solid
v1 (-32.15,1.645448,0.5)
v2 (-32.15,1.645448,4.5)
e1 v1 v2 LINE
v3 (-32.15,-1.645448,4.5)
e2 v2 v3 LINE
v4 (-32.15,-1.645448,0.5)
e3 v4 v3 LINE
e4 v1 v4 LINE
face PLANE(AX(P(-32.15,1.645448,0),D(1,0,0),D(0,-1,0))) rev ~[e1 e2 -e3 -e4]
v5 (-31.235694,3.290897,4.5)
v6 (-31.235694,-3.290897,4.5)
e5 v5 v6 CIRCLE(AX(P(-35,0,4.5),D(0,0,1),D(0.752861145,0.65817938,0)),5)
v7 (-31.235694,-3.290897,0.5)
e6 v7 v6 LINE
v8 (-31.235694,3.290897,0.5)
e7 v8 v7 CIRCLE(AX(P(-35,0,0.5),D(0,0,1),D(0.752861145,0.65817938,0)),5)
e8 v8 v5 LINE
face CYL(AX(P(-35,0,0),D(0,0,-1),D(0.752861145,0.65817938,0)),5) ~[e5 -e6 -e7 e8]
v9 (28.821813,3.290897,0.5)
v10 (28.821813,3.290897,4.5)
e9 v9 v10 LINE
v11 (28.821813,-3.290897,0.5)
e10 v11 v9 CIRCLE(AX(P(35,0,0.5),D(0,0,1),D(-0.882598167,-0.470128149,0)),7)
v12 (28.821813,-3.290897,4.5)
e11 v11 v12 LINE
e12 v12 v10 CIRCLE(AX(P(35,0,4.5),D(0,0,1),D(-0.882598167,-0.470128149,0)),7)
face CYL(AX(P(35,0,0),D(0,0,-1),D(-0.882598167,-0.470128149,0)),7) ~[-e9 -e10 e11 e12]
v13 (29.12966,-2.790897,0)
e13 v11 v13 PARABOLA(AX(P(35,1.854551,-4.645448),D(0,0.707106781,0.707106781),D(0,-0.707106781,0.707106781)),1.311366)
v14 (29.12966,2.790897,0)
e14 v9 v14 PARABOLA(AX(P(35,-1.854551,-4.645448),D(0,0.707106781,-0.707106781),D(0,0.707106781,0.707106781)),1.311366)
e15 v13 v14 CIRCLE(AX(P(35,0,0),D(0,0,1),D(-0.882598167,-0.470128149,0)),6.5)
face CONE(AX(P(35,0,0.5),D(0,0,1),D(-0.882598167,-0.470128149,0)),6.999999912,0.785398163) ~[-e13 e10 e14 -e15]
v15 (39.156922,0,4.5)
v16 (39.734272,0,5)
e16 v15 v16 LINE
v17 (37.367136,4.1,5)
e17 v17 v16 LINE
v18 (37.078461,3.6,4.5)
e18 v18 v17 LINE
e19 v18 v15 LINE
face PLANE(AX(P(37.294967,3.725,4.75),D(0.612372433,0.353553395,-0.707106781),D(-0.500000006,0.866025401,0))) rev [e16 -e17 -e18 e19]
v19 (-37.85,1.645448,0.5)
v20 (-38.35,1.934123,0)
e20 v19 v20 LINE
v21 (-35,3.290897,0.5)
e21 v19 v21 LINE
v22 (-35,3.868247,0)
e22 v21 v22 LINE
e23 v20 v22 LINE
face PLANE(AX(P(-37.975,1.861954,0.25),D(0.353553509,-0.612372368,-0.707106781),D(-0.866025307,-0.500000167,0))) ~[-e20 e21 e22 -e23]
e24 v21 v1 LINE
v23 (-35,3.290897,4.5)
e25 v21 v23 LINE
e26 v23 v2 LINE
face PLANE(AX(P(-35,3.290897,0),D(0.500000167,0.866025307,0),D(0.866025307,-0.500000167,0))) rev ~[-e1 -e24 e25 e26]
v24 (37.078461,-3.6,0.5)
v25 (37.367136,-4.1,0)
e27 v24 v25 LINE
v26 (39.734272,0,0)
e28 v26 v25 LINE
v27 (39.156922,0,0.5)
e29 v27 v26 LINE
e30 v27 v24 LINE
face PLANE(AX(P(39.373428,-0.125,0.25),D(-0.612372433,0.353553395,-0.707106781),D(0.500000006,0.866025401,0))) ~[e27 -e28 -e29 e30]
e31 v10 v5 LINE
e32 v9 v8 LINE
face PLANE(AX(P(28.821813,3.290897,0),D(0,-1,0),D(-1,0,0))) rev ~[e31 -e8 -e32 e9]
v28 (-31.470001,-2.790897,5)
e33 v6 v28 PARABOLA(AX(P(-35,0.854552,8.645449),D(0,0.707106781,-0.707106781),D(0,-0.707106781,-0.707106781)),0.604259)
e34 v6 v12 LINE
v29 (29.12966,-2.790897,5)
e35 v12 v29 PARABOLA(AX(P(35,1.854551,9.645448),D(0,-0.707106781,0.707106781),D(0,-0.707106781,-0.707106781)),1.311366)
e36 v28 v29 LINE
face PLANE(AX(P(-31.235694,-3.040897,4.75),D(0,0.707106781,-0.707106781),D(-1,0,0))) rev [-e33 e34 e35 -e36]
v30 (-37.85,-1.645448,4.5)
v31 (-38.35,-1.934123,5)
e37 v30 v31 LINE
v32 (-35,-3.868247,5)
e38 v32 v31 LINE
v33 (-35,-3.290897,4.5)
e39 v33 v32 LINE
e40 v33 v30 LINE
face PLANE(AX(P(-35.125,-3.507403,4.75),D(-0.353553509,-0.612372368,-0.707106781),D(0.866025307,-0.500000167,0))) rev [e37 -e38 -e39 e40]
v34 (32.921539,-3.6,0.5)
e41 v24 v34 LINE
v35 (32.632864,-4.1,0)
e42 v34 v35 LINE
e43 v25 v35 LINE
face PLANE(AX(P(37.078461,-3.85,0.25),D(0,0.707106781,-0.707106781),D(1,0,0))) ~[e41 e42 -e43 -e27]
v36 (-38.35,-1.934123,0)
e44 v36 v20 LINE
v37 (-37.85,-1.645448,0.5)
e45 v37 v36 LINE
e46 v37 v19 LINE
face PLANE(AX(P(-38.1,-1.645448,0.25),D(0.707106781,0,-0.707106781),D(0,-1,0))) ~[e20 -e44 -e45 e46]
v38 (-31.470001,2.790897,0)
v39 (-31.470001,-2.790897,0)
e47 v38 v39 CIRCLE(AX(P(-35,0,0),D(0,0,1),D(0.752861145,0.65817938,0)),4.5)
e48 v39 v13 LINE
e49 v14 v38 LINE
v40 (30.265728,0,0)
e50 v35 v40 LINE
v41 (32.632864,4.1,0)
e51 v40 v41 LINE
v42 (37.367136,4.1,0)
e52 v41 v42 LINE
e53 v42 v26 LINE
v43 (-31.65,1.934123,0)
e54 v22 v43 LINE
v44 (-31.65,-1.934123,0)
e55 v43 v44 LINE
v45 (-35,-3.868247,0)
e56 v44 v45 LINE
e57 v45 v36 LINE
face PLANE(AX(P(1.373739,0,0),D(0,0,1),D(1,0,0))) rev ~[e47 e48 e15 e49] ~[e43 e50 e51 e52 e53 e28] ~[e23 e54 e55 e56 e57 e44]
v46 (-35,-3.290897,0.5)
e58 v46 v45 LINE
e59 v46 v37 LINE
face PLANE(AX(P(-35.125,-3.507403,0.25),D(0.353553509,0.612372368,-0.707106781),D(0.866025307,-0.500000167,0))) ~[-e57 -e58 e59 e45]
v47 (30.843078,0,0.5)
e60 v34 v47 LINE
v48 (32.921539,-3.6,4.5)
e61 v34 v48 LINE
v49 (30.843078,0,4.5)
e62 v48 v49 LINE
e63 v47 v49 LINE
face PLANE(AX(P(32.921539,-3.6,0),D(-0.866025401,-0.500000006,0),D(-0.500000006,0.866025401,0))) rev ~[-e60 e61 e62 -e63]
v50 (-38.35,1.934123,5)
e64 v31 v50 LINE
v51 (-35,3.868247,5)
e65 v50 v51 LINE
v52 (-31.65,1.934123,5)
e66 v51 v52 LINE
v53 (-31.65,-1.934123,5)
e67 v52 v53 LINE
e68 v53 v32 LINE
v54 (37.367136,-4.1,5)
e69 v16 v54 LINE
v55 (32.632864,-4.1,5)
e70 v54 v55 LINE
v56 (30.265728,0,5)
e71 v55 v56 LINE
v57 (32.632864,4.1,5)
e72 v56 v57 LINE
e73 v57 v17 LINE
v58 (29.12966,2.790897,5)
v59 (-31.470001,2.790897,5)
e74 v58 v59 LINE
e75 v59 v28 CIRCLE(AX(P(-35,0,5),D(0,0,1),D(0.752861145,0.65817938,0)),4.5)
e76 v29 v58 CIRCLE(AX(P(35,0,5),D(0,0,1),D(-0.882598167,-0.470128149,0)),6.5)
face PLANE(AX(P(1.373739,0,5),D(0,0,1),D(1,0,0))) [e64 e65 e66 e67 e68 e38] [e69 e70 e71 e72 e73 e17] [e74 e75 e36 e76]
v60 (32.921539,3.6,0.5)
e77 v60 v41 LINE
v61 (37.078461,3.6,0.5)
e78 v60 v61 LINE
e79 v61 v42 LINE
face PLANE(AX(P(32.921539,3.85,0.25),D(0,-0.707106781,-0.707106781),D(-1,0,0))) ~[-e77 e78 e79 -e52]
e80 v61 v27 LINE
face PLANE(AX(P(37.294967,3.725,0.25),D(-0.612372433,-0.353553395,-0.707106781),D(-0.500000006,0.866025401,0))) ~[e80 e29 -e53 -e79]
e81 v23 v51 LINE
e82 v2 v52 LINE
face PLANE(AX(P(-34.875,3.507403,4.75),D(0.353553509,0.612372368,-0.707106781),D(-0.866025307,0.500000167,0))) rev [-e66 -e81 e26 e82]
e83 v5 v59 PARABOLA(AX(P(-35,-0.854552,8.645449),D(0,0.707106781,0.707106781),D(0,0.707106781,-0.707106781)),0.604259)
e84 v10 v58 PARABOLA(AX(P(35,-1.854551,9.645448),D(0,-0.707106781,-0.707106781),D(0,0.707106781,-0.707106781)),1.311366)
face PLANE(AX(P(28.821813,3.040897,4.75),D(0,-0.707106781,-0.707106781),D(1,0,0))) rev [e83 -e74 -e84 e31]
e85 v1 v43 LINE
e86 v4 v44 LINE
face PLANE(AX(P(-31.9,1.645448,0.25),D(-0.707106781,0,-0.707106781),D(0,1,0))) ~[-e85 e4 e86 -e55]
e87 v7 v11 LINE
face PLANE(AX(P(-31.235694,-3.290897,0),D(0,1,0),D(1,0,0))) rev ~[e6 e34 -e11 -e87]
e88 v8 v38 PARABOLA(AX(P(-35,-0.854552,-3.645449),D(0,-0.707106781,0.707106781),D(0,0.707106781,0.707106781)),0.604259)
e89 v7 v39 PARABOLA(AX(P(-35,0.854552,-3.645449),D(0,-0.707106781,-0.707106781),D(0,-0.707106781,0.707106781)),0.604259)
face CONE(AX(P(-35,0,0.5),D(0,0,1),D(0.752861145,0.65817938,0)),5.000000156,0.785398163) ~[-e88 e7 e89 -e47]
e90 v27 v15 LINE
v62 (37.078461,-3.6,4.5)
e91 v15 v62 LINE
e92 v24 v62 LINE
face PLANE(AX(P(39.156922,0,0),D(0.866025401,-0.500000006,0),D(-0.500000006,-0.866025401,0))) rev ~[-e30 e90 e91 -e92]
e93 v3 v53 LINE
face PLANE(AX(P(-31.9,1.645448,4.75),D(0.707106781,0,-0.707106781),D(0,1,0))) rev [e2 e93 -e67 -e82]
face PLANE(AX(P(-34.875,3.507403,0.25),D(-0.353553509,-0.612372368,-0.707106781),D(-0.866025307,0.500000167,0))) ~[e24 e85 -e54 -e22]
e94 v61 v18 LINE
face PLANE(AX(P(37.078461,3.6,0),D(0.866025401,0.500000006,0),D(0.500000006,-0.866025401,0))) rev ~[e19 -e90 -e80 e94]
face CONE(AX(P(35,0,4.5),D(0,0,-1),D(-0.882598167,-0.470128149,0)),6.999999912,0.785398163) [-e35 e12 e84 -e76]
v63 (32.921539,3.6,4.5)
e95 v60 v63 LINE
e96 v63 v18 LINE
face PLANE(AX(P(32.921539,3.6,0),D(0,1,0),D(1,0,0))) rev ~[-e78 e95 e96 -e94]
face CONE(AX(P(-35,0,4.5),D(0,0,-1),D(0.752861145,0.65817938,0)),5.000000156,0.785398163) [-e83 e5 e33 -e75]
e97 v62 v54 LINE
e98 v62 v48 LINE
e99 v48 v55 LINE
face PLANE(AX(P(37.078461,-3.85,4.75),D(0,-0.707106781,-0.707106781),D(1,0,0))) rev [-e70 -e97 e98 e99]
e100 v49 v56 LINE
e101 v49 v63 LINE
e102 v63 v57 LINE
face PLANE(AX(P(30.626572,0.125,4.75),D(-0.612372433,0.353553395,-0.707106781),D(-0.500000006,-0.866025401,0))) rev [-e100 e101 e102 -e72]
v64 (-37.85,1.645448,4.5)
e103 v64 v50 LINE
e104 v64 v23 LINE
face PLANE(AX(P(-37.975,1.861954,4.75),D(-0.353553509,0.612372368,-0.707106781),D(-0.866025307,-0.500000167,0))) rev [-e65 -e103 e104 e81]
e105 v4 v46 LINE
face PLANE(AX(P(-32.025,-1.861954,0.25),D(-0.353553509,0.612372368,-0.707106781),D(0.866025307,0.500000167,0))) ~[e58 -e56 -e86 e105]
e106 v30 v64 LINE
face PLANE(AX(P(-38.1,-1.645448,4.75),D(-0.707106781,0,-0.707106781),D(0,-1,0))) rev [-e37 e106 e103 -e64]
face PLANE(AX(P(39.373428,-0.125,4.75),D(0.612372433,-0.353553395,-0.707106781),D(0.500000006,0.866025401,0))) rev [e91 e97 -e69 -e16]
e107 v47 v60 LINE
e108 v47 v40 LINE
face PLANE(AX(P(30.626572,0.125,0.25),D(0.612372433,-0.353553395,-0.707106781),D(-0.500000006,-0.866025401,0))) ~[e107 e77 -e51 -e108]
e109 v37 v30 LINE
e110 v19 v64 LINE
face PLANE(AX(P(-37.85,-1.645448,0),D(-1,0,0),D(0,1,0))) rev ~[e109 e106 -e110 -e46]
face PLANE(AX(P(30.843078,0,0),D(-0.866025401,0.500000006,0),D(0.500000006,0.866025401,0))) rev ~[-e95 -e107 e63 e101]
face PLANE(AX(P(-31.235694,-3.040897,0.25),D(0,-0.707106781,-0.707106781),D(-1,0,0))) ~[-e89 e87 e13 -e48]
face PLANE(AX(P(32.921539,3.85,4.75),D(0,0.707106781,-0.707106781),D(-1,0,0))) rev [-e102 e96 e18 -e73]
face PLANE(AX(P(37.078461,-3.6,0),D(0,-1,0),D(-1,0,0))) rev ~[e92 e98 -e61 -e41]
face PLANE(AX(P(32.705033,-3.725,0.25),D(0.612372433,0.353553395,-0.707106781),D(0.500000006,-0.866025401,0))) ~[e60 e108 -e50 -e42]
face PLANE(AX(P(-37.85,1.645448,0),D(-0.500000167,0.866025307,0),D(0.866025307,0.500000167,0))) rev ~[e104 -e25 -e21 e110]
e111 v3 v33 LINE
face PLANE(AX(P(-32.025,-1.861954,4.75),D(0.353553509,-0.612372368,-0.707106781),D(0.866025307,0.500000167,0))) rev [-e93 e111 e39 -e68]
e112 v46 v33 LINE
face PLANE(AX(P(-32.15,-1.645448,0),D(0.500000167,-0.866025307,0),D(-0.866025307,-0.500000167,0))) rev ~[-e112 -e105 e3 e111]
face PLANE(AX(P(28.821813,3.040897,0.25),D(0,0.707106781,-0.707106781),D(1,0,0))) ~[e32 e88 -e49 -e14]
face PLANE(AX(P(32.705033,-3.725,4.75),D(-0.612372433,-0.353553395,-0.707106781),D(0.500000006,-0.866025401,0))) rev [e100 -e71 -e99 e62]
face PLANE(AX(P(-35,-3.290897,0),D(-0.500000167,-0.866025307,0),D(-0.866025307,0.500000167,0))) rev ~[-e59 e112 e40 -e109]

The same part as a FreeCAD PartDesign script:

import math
import FreeCAD as App
import Part
import Sketcher
Q = App.Units.Quantity


def edges_at(feature, points):
    """Names of the edges that pass closest to the given points."""
    edges = feature.Shape.Edges
    near = lambda p: min(range(len(edges)), key=lambda i: edges[i].distToShape(Part.Vertex(*p))[0])
    return sorted({f"Edge{near(p) + 1}" for p in points})


def add_polygon(sketch, points):
    """Adds a closed chain of lines whose ends are joined by coincident constraints."""
    first, n = sketch.GeometryCount, len(points)
    for a, b in zip(points, points[1:] + points[:1]):
        sketch.addGeometry(Part.LineSegment(App.Vector(*a, 0), App.Vector(*b, 0)), False)
    for i in range(n):
        sketch.addConstraint(Sketcher.Constraint("Coincident", first + i, 2, first + (i + 1) % n, 1))

doc = App.newDocument("Part")
body = doc.addObject("PartDesign::Body", "Body")

# Sketch on XY plane
sketch1 = doc.addObject("Sketcher::SketchObject", "Sketch")
body.addObject(sketch1)
sketch1.AttachmentSupport = (doc.XY_Plane, [""])
sketch1.MapMode = "FlatFace"
sketch1.addGeometry(Part.LineSegment(App.Vector(28.8, 3.3, 0), App.Vector(-31.2, 3.3, 0)), False)  # 0
sketch1.addGeometry(Part.ArcOfCircle(Part.Circle(App.Vector(-35, 0, 0), App.Vector(0, 0, 1), 5), math.radians(41), math.radians(319)), False)  # 1
sketch1.addGeometry(Part.LineSegment(App.Vector(-31.2, -3.3, 0), App.Vector(28.8, -3.3, 0)), False)  # 2
sketch1.addGeometry(Part.ArcOfCircle(Part.Circle(App.Vector(35, 0, 0), App.Vector(0, 0, 1), 7), math.radians(-152), math.radians(152)), False)  # 3
add_polygon(sketch1, [(-35, 3.3), (-32.1, 1.6), (-32.1, -1.6), (-35, -3.3), (-37.9, -1.6), (-37.9, 1.6)])  # lines 4-9
add_polygon(sketch1, [(37.1, 3.6), (39.2, 0), (37.1, -3.6), (32.9, -3.6), (30.8, 0), (32.9, 3.6)])  # lines 10-15
sketch1.addConstraint(Sketcher.Constraint("Coincident", 0, 2, 1, 1))
sketch1.addConstraint(Sketcher.Constraint("Coincident", 1, 2, 2, 1))
sketch1.addConstraint(Sketcher.Constraint("Coincident", 2, 2, 3, 1))
sketch1.addConstraint(Sketcher.Constraint("Coincident", 3, 2, 0, 1))
sketch1.addConstraint(Sketcher.Constraint("Horizontal", 0))
sketch1.addConstraint(Sketcher.Constraint("Horizontal", 2))
sketch1.addConstraint(Sketcher.Constraint("Vertical", 5))
sketch1.addConstraint(Sketcher.Constraint("Vertical", 8))
sketch1.addConstraint(Sketcher.Constraint("Horizontal", 12))
sketch1.addConstraint(Sketcher.Constraint("Horizontal", 15))
sketch1.addConstraint(Sketcher.Constraint("Symmetric", 1, 3, 3, 3, -1, 1))
sketch1.addConstraint(Sketcher.Constraint("Symmetric", 0, 2, 1, 2, -1))
sketch1.addConstraint(Sketcher.Constraint("Symmetric", 6, 2, 9, 2, -1))
sketch1.addConstraint(Sketcher.Constraint("Symmetric", 12, 2, 14, 2, -1))
sketch1.addConstraint(Sketcher.Constraint("PointOnObject", 10, 2, -1))
sketch1.addConstraint(Sketcher.Constraint("PointOnObject", 13, 2, -1))
sketch1.addConstraint(Sketcher.Constraint("Parallel", 4, 7))
sketch1.addConstraint(Sketcher.Constraint("Parallel", 6, 9))
sketch1.addConstraint(Sketcher.Constraint("Perpendicular", 9, 10))
sketch1.addConstraint(Sketcher.Constraint("Perpendicular", 7, 11))
sketch1.addConstraint(Sketcher.Constraint("Parallel", 10, 13))
sketch1.addConstraint(Sketcher.Constraint("Parallel", 11, 14))
sketch1.addConstraint(Sketcher.Constraint("Horizontal", 2, 2, 6, 2))
sketch1.addConstraint(Sketcher.Constraint("Horizontal", 5, 2, 7, 2))
sketch1.addConstraint(Sketcher.Constraint("Vertical", 1, 3, 6, 2))
sketch1.addConstraint(Sketcher.Constraint("Radius", 1, Q("5 mm")))
sketch1.addConstraint(Sketcher.Constraint("Radius", 3, Q("7 mm")))
sketch1.addConstraint(Sketcher.Constraint("Angle", 4, Q("-30.000011 deg")))
sketch1.addConstraint(Sketcher.Constraint("DistanceX", 1, 3, -1, 1, Q("35 mm")))
sketch1.addConstraint(Sketcher.Constraint("DistanceY", 11, 2, -1, 1, Q("3.6 mm")))
sketch1.addConstraint(Sketcher.Constraint("DistanceX", 7, 2, 5, 2, Q("5.7 mm")))
sketch1.addConstraint(Sketcher.Constraint("DistanceX", 12, 2, 12, 1, Q("4.156922 mm")))
sketch1.addConstraint(Sketcher.Constraint("DistanceX", 0, 2, 0, 1, Q("60.057507 mm")))
sketch1.addConstraint(Sketcher.Constraint("DistanceX", -1, 1, 11, 2, Q("37.078461 mm")))
pad1 = doc.addObject("PartDesign::Pad", "Pad")
body.addObject(pad1)
pad1.Profile = sketch1
pad1.Length = 5
doc.recompute()

chamfer = doc.addObject("PartDesign::Chamfer", "Chamfer")
body.addObject(chamfer)
chamfer.Base = (pad1, edges_at(pad1, [
    (-36.425, 2.468, 5),
    (-33.575, 2.468, 5),
    (-32.15, 0, 5),
    (-33.575, -2.468, 5),
    (-36.425, -2.468, 5),
    (-37.85, 0, 5),
    (42, 0, 5),
    (-1.207, 3.291, 5),
    (-40, 0, 5),
    (-1.207, -3.291, 5),
    (35, 3.6, 5),
    (38.118, 1.8, 5),
    (38.118, -1.8, 5),
    (35, -3.6, 5),
    (31.882, -1.8, 5),
    (31.882, 1.8, 5),
    (42, 0, 0),
    (-1.207, 3.291, 0),
    (-40, 0, 0),
    (-1.207, -3.291, 0),
    (-33.575, 2.468, 0),
    (-32.15, 0, 0),
    (-33.575, -2.468, 0),
    (-36.425, -2.468, 0),
    (-37.85, 0, 0),
    (-36.425, 2.468, 0),
    (35, 3.6, 0),
    (38.118, 1.8, 0),
    (38.118, -1.8, 0),
    (35, -3.6, 0),
    (31.882, -1.8, 0),
    (31.882, 1.8, 0),
]))
chamfer.Size = 0.5

doc.recompute()
